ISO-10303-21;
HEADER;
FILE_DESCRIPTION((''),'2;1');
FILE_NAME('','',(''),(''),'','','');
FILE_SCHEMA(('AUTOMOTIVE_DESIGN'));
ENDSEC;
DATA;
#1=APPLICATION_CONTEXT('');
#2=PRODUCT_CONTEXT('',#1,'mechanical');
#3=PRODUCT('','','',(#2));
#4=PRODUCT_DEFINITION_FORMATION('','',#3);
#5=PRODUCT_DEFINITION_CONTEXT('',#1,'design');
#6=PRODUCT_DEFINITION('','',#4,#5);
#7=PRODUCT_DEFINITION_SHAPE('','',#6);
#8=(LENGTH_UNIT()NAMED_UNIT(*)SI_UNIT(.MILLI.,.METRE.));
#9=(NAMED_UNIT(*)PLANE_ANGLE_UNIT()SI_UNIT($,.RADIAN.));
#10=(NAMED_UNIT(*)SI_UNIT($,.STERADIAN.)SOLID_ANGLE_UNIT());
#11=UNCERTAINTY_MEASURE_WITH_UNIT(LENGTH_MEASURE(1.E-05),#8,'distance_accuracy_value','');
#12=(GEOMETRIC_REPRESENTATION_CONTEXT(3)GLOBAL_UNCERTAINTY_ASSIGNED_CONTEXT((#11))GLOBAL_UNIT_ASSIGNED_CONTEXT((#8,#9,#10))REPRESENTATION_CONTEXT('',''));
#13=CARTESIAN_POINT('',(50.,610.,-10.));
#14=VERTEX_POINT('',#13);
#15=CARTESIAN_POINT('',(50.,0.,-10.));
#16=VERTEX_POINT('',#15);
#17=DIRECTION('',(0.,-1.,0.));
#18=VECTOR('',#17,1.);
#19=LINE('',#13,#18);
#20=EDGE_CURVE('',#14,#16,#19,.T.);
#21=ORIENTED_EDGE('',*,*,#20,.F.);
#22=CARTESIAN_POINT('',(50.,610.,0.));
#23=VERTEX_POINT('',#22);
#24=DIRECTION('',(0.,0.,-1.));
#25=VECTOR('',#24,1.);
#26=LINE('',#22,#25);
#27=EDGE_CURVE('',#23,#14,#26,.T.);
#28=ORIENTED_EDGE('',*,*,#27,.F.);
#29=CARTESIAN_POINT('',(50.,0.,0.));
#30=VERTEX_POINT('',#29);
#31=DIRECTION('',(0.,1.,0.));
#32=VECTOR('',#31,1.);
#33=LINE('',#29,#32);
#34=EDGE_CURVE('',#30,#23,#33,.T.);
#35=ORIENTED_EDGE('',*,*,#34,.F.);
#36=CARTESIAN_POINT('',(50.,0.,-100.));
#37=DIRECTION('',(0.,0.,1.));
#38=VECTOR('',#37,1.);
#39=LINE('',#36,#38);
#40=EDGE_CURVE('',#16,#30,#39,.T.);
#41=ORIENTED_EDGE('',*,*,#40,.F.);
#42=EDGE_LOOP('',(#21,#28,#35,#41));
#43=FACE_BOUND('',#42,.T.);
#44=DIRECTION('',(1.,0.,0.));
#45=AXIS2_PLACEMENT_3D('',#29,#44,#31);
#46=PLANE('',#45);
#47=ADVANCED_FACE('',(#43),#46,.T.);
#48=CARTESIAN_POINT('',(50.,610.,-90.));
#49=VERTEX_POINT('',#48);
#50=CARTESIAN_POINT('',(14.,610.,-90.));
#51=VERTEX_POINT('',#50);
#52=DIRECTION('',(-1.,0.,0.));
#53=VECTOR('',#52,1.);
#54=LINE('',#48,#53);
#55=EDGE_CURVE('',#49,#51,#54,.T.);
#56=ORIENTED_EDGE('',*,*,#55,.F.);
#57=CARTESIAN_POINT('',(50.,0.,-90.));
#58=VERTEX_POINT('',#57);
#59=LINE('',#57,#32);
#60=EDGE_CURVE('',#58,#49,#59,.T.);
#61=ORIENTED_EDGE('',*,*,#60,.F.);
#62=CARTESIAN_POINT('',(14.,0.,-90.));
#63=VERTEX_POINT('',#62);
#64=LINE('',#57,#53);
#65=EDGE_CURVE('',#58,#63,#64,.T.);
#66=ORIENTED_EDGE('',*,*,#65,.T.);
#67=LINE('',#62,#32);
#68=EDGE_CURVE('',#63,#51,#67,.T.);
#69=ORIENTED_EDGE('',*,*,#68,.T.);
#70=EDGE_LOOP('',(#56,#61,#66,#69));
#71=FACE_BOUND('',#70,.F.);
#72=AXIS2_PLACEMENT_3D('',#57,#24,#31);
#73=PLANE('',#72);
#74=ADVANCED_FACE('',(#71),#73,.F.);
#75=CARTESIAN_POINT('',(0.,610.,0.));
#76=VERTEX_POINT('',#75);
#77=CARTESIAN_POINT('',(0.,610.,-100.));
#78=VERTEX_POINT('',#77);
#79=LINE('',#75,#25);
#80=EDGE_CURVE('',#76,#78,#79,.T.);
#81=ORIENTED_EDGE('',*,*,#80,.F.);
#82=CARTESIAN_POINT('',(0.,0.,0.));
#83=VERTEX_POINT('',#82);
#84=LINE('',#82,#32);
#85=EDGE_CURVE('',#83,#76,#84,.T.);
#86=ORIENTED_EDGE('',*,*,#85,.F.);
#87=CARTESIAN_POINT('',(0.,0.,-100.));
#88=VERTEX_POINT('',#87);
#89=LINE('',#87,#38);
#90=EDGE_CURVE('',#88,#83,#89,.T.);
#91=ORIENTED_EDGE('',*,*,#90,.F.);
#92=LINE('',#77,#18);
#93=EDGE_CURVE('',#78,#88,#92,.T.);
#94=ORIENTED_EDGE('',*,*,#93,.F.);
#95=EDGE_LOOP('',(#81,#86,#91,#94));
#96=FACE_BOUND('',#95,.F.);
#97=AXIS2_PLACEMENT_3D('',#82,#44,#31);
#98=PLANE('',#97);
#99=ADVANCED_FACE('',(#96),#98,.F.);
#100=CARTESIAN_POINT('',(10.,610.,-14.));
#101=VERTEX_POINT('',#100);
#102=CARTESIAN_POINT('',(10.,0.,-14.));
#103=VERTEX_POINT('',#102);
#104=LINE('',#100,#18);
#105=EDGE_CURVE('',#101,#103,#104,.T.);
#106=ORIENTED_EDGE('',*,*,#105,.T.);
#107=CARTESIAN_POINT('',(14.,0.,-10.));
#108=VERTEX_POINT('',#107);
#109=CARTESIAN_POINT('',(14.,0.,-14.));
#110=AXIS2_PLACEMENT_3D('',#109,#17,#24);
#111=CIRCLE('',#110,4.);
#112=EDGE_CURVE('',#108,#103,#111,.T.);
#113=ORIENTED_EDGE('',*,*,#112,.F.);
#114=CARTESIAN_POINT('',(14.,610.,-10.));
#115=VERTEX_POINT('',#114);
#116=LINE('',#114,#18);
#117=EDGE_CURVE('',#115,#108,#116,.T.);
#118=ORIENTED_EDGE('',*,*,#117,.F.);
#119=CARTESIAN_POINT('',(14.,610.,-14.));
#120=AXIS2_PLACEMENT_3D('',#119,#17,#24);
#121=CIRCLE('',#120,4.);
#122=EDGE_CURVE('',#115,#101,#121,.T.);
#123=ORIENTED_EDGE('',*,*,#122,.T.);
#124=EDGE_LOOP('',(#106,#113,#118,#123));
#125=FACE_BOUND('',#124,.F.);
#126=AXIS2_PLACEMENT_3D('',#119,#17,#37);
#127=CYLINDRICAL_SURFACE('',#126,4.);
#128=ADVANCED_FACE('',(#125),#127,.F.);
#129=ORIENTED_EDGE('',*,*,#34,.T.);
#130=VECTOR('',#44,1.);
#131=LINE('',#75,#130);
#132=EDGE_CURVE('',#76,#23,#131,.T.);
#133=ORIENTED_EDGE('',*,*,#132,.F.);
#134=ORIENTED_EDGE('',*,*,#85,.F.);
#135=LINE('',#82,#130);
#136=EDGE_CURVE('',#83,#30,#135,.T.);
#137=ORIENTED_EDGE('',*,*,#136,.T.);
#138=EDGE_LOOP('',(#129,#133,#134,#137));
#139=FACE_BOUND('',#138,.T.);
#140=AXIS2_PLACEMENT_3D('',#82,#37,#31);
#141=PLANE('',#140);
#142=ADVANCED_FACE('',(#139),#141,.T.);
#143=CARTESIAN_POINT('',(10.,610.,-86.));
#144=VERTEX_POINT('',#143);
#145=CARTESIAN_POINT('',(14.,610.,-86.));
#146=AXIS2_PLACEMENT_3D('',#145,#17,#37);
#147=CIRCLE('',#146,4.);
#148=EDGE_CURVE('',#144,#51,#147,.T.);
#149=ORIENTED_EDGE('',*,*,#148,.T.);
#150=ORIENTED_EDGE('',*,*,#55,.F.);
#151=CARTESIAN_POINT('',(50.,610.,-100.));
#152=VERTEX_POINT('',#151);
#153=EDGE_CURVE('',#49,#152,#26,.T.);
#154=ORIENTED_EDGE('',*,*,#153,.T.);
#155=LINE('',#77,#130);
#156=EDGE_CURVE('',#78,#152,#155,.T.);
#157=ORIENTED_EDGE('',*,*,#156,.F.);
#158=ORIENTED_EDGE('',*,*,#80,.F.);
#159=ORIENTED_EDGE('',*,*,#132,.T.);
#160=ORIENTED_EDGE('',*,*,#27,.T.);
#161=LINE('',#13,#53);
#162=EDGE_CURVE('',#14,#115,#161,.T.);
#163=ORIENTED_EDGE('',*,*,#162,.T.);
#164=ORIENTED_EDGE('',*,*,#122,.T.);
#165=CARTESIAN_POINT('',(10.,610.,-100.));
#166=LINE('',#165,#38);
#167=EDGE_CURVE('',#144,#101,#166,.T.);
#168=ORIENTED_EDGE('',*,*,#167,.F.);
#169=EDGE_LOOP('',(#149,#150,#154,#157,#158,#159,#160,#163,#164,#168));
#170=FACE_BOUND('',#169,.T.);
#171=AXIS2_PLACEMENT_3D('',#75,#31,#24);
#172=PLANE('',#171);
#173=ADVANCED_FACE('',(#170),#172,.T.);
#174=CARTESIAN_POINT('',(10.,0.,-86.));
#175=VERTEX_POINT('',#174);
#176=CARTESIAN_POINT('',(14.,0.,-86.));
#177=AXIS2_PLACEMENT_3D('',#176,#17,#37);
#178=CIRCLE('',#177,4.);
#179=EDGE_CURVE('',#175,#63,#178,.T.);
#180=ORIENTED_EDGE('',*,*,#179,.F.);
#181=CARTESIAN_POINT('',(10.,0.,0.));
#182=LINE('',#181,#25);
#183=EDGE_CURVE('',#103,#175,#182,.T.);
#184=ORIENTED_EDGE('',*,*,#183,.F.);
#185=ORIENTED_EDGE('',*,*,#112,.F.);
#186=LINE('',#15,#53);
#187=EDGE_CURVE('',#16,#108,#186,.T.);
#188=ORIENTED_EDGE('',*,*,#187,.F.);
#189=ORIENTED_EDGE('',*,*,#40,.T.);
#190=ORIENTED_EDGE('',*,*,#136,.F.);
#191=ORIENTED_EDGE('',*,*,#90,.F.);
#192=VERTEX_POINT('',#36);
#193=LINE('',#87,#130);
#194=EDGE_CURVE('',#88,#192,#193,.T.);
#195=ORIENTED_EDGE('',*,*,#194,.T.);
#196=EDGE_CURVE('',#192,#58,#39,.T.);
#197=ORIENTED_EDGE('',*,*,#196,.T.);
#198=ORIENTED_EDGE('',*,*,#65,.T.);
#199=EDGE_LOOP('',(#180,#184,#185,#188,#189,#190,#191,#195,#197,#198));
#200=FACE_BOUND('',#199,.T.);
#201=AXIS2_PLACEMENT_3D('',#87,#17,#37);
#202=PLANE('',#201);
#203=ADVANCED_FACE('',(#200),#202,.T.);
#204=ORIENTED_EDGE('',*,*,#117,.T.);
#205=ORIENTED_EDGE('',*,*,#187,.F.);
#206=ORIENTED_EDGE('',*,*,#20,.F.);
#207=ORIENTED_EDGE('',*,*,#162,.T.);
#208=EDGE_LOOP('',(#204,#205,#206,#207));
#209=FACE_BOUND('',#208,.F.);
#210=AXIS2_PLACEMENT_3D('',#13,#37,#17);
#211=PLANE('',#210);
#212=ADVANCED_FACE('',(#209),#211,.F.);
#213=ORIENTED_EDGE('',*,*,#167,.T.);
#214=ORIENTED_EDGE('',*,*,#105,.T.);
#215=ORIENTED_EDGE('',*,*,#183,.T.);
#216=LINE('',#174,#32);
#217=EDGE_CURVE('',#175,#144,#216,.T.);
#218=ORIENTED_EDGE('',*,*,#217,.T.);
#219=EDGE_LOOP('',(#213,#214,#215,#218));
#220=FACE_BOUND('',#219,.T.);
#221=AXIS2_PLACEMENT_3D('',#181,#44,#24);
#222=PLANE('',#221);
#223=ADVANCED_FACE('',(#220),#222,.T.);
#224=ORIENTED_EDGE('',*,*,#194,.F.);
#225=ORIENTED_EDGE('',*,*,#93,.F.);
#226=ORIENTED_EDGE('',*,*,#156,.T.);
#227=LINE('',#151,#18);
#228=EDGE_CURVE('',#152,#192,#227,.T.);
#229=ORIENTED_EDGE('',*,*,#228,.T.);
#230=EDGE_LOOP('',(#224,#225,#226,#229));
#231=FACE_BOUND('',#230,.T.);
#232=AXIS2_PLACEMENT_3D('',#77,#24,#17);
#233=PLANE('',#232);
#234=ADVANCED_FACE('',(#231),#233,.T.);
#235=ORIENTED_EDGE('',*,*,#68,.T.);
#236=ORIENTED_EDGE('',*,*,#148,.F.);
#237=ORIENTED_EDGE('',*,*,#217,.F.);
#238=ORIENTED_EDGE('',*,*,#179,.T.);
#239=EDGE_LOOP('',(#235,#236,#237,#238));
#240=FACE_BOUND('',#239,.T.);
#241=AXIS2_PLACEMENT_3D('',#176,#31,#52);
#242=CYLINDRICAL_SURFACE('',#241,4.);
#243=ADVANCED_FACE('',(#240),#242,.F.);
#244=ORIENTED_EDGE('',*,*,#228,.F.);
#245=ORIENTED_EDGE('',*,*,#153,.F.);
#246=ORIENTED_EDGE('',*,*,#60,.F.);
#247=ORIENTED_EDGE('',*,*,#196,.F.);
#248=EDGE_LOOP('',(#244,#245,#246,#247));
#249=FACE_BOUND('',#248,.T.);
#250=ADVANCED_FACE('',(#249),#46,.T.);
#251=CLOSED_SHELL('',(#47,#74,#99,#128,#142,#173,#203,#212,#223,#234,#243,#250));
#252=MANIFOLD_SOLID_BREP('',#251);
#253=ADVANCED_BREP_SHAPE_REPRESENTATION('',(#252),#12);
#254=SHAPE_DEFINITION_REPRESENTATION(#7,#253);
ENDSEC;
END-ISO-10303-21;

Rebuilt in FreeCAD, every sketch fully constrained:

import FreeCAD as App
import Part
import Sketcher

V = App.Vector


def edges_at(feature, points):
    """Names of the edges that pass closest to the given points."""
    edges = feature.Shape.Edges
    near = lambda p: min(range(len(edges)), key=lambda i: edges[i].distToShape(Part.Vertex(*p))[0])
    return sorted({f"Edge{near(p) + 1}" for p in points})

doc = App.newDocument("Part")
params = doc.addObject("Spreadsheet::Sheet", "Params")
for row, (alias, value) in enumerate([
    ("sketch1_width", "610 mm"),
    ("sketch1_height", "100 mm"),
    ("pad1_length", "50 mm"),
    ("sketch2_height", "80 mm"),
    ("sketch2_width", "610 mm"),
    ("pocket1_length", "40 mm"),
    ("fillet_radius", "4 mm"),
], start=1):
    params.set(f"A{row}", alias)
    params.set(f"B{row}", "=" + value)
    params.setAlias(f"B{row}", alias)

body = doc.addObject("PartDesign::Body", "Body")

# Sketch on YZ plane
sketch1 = body.newObject("Sketcher::SketchObject", "Sketch")
sketch1.AttachmentSupport = (doc.getObject("YZ_Plane"), [""])
sketch1.MapMode = "FlatFace"
sketch1.addGeometry([
    Part.LineSegment(V(610, 0, 0), V(0, 0, 0)),
    Part.LineSegment(V(0, 0, 0), V(0, -100, 0)),
    Part.LineSegment(V(0, -100, 0), V(610, -100, 0)),
    Part.LineSegment(V(610, -100, 0), V(610, 0, 0)),
], False)
sketch1.addConstraint([
    Sketcher.Constraint("Coincident", 0, 2, 1, 1),
    Sketcher.Constraint("Coincident", 1, 2, 2, 1),
    Sketcher.Constraint("Coincident", 2, 2, 3, 1),
    Sketcher.Constraint("Coincident", 3, 2, 0, 1),
    Sketcher.Constraint("Horizontal", 0),
    Sketcher.Constraint("Vertical", 1),
    Sketcher.Constraint("Horizontal", 2),
    Sketcher.Constraint("Vertical", 3),
    Sketcher.Constraint("Coincident", 0, 2, -1, 1),
    Sketcher.Constraint("DistanceX", 0, 2, 0, 1, 610.0),
    Sketcher.Constraint("DistanceY", 1, 2, 1, 1, 100.0),
])
sketch1.setExpression("Constraints[9]", "Params.sketch1_width")
sketch1.setExpression("Constraints[10]", "Params.sketch1_height")
pad1 = body.newObject("PartDesign::Pad", "Pad")
pad1.Profile = sketch1
pad1.setExpression("Length", "Params.pad1_length")

# Sketch on YZ plane
sketch2 = body.newObject("Sketcher::SketchObject", "Sketch001")
sketch2.AttachmentSupport = (doc.getObject("YZ_Plane"), [""])
sketch2.MapMode = "FlatFace"
sketch2.AttachmentOffset = App.Placement(V(0, 0, 50), App.Rotation())
sketch2.addGeometry([
    Part.LineSegment(V(610, -10, 0), V(0, -10, 0)),
    Part.LineSegment(V(0, -10, 0), V(0, -90, 0)),
    Part.LineSegment(V(0, -90, 0), V(610, -90, 0)),
    Part.LineSegment(V(610, -90, 0), V(610, -10, 0)),
], False)
sketch2.addConstraint([
    Sketcher.Constraint("Coincident", 0, 2, 1, 1),
    Sketcher.Constraint("Coincident", 1, 2, 2, 1),
    Sketcher.Constraint("Coincident", 2, 2, 3, 1),
    Sketcher.Constraint("Coincident", 3, 2, 0, 1),
    Sketcher.Constraint("Horizontal", 0),
    Sketcher.Constraint("Vertical", 1),
    Sketcher.Constraint("Horizontal", 2),
    Sketcher.Constraint("Vertical", 3),
    Sketcher.Constraint("PointOnObject", 0, 2, -2),
    Sketcher.Constraint("DistanceY", 1, 2, 1, 1, 80.0),
    Sketcher.Constraint("DistanceX", 0, 2, 0, 1, 610.0),
    Sketcher.Constraint("DistanceY", 0, 2, -1, 1, 10.0),
])
sketch2.setExpression("Constraints[9]", "Params.sketch2_height")
sketch2.setExpression("Constraints[10]", "Params.sketch2_width")
pocket1 = body.newObject("PartDesign::Pocket", "Pocket")
pocket1.Profile = sketch2
pocket1.setExpression("Length", "Params.pocket1_length")
doc.recompute()

fillet = body.newObject("PartDesign::Fillet", "Fillet")
fillet.Base = (pocket1, edges_at(pocket1, [(10, 305, -90), (10, 305, -10)]))
fillet.setExpression("Radius", "Params.fillet_radius")

doc.recompute()
